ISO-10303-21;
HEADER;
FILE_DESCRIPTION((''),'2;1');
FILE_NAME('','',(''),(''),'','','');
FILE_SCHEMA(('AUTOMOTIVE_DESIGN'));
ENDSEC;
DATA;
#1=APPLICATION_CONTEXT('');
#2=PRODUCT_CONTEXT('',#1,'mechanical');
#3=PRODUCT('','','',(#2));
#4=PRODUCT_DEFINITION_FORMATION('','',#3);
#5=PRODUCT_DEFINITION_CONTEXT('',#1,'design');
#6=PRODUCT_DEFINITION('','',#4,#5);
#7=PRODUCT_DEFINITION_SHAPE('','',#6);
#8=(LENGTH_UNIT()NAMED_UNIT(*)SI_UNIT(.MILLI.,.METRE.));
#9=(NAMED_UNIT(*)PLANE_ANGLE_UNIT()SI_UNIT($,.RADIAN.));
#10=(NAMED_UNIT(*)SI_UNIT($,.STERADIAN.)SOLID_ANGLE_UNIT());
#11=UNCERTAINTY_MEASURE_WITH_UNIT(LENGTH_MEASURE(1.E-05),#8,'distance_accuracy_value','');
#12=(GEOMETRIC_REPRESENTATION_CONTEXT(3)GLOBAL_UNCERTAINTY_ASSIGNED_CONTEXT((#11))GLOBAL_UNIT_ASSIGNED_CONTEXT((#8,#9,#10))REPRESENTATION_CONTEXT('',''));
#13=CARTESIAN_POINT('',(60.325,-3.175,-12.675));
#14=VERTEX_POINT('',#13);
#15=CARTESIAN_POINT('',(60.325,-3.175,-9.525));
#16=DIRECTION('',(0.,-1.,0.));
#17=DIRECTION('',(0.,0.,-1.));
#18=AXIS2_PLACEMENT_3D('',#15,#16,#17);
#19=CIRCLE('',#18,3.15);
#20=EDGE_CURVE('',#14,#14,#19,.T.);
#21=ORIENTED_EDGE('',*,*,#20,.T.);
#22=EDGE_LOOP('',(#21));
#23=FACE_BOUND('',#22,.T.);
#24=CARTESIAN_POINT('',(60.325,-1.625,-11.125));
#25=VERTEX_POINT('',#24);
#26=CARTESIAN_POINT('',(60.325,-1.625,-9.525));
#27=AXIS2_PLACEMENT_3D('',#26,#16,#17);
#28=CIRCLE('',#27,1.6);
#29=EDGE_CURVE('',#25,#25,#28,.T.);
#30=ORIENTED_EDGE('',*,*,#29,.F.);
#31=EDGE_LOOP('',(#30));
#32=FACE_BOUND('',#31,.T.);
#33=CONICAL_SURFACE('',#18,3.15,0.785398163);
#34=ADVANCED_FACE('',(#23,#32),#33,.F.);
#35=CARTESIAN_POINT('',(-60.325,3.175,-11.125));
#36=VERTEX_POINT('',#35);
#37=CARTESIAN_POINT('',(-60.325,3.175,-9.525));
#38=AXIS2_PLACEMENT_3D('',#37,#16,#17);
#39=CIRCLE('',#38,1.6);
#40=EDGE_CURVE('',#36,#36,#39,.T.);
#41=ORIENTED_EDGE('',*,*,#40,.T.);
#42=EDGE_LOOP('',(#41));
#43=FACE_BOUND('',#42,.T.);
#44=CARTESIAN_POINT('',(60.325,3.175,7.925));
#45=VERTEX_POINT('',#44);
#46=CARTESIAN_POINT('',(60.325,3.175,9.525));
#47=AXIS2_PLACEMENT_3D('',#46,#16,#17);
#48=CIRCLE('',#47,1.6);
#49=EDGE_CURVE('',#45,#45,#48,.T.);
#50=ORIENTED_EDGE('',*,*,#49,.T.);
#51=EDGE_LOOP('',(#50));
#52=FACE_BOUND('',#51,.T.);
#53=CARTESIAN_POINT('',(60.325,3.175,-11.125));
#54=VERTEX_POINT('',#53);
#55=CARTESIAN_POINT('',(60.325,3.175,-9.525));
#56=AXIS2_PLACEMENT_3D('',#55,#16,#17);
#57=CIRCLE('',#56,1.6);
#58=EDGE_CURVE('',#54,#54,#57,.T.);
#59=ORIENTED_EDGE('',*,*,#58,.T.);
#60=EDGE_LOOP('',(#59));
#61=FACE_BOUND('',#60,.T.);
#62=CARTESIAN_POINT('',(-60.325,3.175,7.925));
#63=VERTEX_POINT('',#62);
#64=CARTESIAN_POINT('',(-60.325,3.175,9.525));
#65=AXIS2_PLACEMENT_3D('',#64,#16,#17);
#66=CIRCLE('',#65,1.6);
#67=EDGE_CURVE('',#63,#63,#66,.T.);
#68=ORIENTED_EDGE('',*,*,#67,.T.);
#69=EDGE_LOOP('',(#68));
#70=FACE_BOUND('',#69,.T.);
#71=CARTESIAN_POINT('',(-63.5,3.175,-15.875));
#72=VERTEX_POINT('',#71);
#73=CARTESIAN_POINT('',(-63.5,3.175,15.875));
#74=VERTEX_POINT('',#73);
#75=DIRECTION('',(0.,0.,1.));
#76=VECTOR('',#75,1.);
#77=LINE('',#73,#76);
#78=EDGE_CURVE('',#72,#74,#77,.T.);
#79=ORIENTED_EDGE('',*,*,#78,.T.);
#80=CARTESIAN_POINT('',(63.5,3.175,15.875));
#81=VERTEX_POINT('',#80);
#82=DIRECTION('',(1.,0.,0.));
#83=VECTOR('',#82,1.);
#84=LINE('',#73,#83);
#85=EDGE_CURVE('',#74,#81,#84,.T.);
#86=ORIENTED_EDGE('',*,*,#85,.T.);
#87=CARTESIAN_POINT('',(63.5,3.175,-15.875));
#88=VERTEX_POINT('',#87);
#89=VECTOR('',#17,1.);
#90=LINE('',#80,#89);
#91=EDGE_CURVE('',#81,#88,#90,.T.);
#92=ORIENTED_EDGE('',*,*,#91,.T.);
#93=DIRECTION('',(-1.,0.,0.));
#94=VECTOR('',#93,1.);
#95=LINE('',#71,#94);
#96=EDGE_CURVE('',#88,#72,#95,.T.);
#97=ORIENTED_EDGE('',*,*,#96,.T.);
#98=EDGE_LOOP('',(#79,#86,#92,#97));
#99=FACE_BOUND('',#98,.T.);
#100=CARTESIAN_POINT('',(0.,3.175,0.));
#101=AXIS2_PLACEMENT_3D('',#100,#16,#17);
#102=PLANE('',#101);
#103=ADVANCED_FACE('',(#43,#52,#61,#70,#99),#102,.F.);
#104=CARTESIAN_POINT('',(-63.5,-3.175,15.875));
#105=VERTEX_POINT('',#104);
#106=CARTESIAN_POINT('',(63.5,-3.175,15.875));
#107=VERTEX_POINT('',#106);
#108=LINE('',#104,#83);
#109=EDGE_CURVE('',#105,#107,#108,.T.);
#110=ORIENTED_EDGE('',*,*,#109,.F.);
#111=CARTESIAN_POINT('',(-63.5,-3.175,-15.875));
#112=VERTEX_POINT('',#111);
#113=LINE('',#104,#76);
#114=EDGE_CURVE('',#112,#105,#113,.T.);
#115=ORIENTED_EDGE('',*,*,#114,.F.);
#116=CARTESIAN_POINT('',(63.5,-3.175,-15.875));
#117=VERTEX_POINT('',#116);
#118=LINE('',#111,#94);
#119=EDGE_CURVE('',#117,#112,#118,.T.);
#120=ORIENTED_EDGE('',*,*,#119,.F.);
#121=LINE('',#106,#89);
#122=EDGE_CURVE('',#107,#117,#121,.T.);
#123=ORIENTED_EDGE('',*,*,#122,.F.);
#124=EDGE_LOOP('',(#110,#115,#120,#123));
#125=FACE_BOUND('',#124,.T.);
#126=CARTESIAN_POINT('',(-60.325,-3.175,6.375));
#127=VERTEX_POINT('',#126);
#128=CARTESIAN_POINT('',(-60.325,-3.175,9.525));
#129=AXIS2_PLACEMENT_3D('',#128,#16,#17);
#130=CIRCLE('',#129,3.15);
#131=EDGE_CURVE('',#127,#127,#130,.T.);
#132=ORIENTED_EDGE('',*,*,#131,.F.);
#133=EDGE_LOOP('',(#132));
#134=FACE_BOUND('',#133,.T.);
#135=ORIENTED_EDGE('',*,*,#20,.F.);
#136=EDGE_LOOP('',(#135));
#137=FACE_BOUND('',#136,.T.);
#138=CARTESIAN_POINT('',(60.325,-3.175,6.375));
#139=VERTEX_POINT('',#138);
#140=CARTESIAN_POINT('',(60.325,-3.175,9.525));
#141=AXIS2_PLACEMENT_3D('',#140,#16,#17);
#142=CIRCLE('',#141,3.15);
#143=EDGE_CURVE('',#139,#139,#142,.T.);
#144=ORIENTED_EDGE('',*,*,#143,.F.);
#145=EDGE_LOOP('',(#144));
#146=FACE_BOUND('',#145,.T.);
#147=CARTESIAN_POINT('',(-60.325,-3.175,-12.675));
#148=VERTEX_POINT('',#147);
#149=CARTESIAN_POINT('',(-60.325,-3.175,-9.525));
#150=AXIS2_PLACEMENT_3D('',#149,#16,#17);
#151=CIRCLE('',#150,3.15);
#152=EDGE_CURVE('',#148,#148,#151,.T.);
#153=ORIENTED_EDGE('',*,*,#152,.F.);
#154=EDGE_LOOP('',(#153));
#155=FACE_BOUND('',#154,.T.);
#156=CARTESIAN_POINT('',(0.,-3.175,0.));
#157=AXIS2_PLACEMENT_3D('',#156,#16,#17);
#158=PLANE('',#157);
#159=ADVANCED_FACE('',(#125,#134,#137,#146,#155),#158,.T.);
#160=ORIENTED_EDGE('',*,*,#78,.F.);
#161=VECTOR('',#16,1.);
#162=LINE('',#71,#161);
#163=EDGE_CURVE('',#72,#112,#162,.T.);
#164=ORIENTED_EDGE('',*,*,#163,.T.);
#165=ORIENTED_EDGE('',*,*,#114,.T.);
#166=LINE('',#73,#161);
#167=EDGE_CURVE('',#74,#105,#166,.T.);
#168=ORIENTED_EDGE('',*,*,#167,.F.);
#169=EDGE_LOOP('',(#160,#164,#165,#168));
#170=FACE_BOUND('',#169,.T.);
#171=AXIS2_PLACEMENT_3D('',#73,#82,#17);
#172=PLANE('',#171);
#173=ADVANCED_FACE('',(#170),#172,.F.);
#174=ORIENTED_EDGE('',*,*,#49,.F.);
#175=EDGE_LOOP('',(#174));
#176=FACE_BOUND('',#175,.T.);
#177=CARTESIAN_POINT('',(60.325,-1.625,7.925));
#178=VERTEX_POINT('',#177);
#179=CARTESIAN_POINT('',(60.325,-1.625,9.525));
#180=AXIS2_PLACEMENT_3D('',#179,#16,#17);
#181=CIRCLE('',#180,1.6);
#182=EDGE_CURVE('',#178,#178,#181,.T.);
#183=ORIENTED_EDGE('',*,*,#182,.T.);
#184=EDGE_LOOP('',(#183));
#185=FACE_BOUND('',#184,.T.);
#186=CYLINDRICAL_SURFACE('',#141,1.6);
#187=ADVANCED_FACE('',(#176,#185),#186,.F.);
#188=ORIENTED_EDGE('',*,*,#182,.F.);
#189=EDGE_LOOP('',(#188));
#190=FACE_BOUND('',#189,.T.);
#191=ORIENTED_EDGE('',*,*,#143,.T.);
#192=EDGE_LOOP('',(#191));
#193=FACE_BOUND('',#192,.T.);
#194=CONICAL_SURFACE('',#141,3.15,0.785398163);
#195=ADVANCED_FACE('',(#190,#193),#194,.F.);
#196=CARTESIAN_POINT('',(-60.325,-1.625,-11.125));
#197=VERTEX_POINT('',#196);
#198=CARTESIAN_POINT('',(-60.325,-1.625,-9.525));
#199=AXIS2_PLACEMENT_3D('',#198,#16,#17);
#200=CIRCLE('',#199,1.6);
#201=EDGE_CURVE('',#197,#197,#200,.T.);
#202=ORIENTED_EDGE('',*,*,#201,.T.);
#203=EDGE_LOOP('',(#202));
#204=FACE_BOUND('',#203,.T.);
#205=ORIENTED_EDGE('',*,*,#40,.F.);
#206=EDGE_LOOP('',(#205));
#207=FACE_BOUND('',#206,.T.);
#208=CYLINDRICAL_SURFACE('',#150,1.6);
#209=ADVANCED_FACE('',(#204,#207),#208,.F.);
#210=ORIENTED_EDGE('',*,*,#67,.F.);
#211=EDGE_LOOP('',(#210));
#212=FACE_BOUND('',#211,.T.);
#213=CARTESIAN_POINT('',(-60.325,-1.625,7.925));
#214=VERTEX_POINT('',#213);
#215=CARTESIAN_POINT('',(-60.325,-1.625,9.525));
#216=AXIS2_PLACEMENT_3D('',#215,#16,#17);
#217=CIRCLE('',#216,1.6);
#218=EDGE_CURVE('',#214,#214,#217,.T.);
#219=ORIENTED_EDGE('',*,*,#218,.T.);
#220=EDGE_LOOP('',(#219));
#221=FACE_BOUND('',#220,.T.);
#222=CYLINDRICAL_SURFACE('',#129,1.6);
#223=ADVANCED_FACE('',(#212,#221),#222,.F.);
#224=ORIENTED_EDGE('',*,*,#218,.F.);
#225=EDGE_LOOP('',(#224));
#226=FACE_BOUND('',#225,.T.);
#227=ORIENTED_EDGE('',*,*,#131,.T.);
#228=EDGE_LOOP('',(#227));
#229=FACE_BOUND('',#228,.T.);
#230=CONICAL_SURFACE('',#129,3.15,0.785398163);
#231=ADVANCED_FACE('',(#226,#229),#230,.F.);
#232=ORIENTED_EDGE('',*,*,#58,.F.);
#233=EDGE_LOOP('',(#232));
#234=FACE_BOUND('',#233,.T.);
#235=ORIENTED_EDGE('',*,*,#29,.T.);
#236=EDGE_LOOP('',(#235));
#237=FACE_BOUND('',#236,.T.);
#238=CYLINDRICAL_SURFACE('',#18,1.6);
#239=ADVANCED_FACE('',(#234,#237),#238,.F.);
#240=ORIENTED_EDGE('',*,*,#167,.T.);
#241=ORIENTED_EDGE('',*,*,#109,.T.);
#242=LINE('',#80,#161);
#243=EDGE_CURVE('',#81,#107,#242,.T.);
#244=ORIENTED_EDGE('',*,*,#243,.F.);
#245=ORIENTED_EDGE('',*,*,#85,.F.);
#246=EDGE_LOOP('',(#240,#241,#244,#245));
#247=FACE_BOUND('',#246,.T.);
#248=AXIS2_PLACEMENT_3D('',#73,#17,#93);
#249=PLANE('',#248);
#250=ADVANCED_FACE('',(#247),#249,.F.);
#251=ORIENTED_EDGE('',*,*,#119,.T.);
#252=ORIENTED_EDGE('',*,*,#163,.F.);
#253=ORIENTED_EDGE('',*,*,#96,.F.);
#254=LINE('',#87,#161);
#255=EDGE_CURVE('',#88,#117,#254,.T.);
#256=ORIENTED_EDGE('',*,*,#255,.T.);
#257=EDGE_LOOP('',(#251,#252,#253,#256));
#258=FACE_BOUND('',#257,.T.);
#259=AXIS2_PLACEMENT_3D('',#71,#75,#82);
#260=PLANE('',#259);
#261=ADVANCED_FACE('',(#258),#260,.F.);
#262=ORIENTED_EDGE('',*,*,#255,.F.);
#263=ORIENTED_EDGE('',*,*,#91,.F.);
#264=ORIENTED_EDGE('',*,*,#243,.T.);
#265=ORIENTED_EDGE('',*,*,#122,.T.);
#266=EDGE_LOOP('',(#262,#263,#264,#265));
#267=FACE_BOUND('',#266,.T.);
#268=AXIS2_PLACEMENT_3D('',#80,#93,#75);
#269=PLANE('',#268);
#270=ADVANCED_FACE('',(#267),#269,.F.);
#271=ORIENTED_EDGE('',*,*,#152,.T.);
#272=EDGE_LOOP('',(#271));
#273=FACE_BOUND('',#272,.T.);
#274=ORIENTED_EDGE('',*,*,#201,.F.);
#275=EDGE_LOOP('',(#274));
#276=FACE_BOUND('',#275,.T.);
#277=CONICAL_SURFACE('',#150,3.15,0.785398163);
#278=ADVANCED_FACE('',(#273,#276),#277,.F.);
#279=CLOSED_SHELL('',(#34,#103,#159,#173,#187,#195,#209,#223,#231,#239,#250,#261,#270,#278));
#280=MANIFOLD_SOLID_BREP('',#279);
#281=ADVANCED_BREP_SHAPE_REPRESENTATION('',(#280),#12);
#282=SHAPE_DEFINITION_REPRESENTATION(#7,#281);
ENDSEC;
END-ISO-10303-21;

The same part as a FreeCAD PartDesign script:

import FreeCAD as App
import Part
import Sketcher
from FreeCAD import Vector
Q = App.Units.Quantity


def add_polygon(sketch, points):
    """Adds a closed chain of lines whose ends are joined by coincident constraints."""
    first, n = sketch.GeometryCount, len(points)
    for a, b in zip(points, points[1:] + points[:1]):
        sketch.addGeometry(Part.LineSegment(App.Vector(*a, 0), App.Vector(*b, 0)), False)
    for i in range(n):
        sketch.addConstraint(Sketcher.Constraint("Coincident", first + i, 2, first + (i + 1) % n, 1))

doc = App.newDocument("Part")
body = doc.addObject("PartDesign::Body", "Body")

sketch1 = body.newObject("Sketcher::SketchObject", "Sketch")
sketch1.AttachmentSupport = (doc.getObject("XZ_Plane"), [""])
sketch1.MapMode = "FlatFace"
add_polygon(sketch1, [(-64, -16), (-64, 16), (64, 16), (64, -16)])
sketch1.addConstraint([
    Sketcher.Constraint("Vertical", 0),
    Sketcher.Constraint("Horizontal", 1),
    Sketcher.Constraint("Vertical", 2),
    Sketcher.Constraint("Horizontal", 3),
    Sketcher.Constraint("Symmetric", 0, 2, 2, 2, -1, 1),
    Sketcher.Constraint("DistanceX", 1, 1, 1, 2, Q("5 in")),
    Sketcher.Constraint("DistanceY", 0, 1, 0, 2, Q("1.25 in")),
])
pad1 = body.newObject("PartDesign::Pad", "Pad")
pad1.Profile = sketch1
pad1.Length = Q("0.25 in")
pad1.Midplane = True

sketch2 = body.newObject("Sketcher::SketchObject", "Sketch001")
sketch2.AttachmentSupport = (doc.getObject("XZ_Plane"), [""])
sketch2.MapMode = "FlatFace"
sketch2.AttachmentOffset = App.Placement(Vector(0, 0, 0.125 * 25.4), App.Rotation())
sketch2.addGeometry([
    Part.Circle(Vector(-60.3, 9.5, 0), Vector(0, 0, 1), 1.6),
    Part.Circle(Vector(-60.3, -9.5, 0), Vector(0, 0, 1), 1.6),
    Part.Circle(Vector(60.3, 9.5, 0), Vector(0, 0, 1), 1.6),
    Part.Circle(Vector(60.3, -9.5, 0), Vector(0, 0, 1), 1.6),
], False)
sketch2.addConstraint([
    Sketcher.Constraint("Equal", 0, 1),
    Sketcher.Constraint("Equal", 1, 2),
    Sketcher.Constraint("Equal", 2, 3),
    Sketcher.Constraint("Symmetric", 1, 3, 2, 3, -1, 1),
    Sketcher.Constraint("Symmetric", 0, 3, 3, 3, -1, 1),
    Sketcher.Constraint("Symmetric", 0, 3, 2, 3, -2),
    Sketcher.Constraint("Diameter", 0, 3.2),
    Sketcher.Constraint("DistanceY", 1, 3, 0, 3, Q("0.75 in")),
    Sketcher.Constraint("DistanceX", 0, 3, 2, 3, Q("4.75 in")),
])
doc.recompute()
hole = body.newObject("PartDesign::Hole", "Hole")
hole.Profile = sketch2
hole.ThreadType = "None"
hole.Diameter = 3.2
hole.DepthType = "Dimension"
hole.Depth = Q("0.5 in")
hole.DrillPoint = "Angled"
hole.DrillPointAngle = 118
hole.HoleCutType = "Countersink"
hole.HoleCutDiameter = 6.3
hole.HoleCutCountersinkAngle = 90

doc.recompute()
